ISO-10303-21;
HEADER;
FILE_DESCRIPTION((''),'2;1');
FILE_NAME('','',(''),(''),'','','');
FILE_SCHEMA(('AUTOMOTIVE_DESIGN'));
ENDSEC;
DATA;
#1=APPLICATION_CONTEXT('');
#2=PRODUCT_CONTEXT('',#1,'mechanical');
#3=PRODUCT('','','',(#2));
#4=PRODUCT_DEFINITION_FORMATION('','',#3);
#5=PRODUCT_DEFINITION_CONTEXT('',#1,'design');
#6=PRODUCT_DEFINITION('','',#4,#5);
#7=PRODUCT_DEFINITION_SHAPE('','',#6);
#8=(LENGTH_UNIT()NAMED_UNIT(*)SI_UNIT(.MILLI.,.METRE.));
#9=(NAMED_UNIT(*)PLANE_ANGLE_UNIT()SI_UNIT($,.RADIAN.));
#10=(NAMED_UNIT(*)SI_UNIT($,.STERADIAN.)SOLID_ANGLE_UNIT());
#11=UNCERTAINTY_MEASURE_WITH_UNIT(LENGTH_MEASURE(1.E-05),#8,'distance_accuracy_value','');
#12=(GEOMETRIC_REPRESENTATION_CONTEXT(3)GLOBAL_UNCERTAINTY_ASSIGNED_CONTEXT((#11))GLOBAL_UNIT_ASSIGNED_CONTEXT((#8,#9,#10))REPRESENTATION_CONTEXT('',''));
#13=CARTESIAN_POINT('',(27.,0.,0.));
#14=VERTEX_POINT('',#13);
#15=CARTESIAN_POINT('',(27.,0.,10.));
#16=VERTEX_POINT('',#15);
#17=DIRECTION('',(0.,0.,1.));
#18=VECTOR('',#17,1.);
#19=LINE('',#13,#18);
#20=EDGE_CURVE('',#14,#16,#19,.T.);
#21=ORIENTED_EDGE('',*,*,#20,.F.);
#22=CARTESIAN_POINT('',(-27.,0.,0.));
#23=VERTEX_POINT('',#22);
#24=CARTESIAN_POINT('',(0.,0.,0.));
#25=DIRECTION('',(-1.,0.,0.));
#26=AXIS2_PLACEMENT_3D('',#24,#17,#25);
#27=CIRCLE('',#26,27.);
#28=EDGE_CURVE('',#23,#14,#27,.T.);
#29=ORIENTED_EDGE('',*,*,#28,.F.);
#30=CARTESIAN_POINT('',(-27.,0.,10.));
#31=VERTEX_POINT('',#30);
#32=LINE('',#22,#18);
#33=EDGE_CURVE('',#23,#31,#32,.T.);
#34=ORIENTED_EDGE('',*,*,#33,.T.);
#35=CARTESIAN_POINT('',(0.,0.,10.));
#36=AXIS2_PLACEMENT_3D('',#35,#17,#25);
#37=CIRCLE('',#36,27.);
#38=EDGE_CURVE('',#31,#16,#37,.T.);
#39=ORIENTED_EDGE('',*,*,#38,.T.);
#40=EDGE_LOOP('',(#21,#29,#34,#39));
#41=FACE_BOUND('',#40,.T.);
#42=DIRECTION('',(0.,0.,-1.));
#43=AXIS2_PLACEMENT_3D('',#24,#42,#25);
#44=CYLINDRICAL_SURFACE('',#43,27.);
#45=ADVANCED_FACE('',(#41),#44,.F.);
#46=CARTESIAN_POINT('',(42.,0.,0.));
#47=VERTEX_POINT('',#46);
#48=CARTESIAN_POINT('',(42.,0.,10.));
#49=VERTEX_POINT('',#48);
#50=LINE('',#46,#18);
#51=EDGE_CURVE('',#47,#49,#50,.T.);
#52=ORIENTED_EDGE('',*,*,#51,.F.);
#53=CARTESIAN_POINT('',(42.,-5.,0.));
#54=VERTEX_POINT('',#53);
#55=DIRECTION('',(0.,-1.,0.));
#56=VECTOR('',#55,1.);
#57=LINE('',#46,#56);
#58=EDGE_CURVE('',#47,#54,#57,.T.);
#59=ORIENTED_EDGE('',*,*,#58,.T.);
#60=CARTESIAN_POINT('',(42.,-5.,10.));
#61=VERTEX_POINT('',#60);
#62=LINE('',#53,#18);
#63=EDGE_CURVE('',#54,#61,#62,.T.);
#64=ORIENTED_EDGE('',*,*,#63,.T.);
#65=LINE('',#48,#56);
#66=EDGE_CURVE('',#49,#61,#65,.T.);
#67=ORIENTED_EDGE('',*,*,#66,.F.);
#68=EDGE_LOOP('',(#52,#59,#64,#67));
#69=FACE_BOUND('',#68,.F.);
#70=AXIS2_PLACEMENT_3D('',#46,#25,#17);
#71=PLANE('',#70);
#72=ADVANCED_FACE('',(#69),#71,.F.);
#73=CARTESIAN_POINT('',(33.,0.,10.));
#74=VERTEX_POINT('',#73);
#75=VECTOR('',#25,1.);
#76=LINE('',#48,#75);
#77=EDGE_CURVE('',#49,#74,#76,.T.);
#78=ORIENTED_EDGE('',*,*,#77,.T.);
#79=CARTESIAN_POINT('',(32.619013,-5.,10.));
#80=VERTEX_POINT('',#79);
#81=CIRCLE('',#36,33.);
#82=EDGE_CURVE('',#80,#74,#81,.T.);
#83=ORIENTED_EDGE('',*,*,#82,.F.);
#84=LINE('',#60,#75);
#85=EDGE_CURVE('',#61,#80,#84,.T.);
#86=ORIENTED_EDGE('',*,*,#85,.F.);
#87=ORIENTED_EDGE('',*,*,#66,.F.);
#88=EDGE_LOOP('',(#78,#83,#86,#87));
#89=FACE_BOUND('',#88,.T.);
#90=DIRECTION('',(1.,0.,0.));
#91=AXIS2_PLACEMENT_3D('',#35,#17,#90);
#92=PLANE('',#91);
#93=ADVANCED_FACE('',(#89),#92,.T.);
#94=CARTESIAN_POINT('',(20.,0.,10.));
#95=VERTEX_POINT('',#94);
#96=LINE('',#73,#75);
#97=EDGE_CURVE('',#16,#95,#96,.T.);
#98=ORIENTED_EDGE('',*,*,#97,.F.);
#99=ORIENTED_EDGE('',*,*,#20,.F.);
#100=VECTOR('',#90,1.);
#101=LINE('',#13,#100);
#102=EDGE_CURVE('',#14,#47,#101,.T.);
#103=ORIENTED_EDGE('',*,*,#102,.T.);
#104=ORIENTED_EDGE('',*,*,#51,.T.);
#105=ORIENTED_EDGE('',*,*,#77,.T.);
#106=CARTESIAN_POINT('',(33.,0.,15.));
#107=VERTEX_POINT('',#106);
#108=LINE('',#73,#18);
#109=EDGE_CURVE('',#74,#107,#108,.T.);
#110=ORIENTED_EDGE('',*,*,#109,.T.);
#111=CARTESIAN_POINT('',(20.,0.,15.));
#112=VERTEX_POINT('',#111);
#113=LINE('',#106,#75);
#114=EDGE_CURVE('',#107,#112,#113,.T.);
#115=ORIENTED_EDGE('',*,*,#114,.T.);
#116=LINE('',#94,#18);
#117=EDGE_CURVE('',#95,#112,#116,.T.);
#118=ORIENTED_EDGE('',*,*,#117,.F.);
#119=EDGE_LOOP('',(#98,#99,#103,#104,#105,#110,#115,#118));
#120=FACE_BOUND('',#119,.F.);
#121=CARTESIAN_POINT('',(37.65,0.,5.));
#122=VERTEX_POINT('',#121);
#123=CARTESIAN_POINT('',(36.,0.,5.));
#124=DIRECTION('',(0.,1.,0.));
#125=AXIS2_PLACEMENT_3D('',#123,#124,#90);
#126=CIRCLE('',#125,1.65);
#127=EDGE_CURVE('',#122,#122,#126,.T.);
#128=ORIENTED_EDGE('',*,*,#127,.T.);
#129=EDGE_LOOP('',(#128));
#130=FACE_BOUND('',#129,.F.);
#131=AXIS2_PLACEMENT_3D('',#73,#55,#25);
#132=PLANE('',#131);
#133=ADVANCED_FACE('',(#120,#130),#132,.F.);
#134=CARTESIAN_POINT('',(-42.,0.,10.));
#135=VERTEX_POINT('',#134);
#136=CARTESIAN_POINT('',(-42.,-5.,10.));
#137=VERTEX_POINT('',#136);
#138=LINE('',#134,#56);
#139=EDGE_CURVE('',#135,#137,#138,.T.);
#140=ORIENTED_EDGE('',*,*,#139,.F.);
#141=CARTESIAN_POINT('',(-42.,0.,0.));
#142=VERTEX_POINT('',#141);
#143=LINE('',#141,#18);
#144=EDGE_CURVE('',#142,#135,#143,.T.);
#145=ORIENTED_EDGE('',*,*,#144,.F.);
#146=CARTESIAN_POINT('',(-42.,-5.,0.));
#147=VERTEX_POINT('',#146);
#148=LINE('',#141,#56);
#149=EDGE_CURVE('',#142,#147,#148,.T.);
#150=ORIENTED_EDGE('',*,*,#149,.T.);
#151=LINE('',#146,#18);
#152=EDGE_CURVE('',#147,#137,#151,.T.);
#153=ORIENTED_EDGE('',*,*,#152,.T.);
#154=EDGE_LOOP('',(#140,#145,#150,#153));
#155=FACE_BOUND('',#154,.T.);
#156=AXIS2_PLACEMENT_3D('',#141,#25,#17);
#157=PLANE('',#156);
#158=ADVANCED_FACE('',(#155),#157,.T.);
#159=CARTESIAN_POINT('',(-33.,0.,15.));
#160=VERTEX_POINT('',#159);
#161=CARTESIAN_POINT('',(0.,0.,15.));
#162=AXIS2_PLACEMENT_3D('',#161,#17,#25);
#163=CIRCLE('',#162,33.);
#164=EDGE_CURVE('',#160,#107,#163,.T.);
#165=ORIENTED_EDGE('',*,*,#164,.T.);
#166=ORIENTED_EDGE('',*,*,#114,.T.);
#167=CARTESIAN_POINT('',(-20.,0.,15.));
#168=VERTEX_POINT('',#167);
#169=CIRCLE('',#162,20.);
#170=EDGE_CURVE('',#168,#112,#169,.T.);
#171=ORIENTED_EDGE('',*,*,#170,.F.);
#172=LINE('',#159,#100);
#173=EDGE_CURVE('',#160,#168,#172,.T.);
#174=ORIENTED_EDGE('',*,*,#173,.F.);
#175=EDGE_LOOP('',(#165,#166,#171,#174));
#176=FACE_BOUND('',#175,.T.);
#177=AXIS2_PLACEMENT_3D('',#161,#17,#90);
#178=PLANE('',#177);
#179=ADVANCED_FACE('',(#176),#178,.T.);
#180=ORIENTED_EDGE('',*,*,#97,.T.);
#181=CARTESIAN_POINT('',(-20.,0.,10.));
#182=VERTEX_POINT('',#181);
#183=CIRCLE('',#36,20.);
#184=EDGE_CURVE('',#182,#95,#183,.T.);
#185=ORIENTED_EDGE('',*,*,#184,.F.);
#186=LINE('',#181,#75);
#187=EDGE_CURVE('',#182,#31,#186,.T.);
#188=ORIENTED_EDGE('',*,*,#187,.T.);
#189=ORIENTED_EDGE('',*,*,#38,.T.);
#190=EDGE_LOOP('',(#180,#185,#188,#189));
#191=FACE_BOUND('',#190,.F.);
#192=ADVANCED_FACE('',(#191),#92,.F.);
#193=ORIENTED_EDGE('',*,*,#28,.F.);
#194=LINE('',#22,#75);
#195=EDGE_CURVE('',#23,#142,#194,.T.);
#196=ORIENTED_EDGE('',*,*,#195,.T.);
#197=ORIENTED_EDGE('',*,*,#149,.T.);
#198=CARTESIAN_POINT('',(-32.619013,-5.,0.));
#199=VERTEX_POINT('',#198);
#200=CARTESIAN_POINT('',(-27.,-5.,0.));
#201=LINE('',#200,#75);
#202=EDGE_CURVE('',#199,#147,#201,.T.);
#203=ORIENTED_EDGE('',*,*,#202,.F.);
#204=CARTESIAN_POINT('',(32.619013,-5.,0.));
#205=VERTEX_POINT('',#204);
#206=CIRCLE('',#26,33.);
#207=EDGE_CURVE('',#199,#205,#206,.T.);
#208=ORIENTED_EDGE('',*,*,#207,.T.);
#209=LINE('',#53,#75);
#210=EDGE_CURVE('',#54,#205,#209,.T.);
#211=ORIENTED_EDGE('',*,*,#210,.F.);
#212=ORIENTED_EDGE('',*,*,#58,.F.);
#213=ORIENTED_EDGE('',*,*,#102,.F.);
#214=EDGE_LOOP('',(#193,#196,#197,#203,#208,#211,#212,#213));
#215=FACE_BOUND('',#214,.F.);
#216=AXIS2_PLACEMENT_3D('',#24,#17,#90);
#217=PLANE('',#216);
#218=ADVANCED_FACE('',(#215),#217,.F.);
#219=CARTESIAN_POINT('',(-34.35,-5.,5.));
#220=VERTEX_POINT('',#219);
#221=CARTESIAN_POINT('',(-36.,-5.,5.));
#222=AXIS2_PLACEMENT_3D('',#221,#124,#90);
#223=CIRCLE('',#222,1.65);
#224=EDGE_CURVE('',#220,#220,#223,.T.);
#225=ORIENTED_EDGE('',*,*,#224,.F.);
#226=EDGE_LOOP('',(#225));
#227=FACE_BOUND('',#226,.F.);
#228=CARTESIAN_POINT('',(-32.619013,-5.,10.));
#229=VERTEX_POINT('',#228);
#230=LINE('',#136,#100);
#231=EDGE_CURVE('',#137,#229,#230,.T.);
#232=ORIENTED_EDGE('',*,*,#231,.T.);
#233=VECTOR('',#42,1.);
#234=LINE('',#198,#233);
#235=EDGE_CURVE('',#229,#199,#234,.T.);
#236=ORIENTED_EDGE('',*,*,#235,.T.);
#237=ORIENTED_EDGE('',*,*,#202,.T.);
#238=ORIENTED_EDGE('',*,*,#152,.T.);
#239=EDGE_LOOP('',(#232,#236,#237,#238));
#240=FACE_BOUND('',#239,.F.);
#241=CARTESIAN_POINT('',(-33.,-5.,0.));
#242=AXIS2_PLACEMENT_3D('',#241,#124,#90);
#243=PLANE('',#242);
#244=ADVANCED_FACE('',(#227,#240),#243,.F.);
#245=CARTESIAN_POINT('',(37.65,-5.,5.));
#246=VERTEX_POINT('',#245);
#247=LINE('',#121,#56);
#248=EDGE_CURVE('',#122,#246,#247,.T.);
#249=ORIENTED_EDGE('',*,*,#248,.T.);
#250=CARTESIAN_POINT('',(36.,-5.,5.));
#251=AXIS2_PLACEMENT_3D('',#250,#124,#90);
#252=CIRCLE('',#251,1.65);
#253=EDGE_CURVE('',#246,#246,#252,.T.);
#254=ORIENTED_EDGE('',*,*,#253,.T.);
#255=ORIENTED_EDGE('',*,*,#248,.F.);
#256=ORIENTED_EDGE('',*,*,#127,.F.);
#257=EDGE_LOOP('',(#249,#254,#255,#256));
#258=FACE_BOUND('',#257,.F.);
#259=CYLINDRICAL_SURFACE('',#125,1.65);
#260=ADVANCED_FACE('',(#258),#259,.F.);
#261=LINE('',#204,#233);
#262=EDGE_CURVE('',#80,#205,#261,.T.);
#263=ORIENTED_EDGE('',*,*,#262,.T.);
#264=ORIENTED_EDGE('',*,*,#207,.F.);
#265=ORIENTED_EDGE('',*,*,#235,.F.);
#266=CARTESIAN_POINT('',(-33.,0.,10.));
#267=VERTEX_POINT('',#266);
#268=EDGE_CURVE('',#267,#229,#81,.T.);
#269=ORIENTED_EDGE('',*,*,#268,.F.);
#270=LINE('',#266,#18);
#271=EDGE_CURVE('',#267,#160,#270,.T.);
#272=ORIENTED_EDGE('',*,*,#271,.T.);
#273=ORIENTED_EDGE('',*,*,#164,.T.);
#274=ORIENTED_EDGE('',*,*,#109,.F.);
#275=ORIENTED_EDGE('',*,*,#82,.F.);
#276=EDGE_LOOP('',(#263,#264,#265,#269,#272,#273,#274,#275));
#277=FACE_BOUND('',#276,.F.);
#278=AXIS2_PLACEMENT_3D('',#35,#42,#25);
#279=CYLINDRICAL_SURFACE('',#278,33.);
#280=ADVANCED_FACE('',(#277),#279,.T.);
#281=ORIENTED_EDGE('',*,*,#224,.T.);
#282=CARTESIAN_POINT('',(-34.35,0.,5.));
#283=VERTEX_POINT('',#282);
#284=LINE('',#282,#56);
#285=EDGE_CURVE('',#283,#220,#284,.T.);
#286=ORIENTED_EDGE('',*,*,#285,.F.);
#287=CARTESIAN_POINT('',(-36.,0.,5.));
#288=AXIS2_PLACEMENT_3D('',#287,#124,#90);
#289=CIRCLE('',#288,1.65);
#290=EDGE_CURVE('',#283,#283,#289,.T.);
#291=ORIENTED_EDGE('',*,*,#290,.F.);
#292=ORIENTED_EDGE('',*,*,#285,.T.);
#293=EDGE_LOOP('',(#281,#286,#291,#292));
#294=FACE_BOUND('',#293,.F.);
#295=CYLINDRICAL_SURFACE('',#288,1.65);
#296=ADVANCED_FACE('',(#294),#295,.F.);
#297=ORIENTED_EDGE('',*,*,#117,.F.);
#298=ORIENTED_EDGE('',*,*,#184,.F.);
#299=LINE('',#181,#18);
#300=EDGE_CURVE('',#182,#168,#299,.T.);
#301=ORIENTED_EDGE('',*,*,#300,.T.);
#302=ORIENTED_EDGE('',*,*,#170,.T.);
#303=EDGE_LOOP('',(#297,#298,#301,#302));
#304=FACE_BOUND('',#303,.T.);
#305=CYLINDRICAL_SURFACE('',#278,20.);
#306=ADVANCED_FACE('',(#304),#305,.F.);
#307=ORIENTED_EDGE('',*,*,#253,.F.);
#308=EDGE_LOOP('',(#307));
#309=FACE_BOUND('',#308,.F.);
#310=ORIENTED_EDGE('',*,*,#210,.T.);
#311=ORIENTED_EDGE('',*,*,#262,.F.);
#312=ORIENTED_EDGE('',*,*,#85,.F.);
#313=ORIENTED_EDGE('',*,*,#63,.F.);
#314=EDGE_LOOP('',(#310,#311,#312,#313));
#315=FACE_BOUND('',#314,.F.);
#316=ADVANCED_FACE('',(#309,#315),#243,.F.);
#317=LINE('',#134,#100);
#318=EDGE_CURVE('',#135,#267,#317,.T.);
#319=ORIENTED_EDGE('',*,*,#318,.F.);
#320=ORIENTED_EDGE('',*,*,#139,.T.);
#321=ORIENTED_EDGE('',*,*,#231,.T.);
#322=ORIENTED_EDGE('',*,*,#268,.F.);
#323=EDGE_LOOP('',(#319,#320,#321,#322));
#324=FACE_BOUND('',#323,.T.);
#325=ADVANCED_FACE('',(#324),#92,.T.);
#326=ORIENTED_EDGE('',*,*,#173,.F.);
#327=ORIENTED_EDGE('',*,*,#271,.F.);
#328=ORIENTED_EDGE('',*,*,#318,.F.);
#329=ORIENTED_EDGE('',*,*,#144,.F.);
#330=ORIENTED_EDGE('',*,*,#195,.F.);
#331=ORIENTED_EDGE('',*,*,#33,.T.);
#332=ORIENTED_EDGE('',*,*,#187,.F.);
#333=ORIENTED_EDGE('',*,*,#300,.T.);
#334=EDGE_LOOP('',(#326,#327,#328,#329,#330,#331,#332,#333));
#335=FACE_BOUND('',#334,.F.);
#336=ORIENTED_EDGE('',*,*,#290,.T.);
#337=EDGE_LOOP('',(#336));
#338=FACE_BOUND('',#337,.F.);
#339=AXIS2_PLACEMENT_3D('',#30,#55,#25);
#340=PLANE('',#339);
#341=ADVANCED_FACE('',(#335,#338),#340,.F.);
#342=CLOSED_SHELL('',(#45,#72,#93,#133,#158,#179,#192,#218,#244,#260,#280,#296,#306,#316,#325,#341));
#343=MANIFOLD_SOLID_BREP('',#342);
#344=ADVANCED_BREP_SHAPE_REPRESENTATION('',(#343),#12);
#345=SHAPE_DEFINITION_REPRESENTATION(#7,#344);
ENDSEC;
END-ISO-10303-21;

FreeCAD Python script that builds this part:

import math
import FreeCAD as App
import Part
import Sketcher

V = App.Vector

doc = App.newDocument("Part")
body = doc.addObject("PartDesign::Body", "Body")

# Sketch on XY plane
sketch1 = doc.addObject("Sketcher::SketchObject", "Sketch")
body.addObject(sketch1)
sketch1.AttachmentSupport = (doc.XY_Plane, [""])
sketch1.MapMode = "FlatFace"
sketch1.addGeometry(Part.LineSegment(V(-27, 0, 0), V(-33, 0, 0)), False)
sketch1.addGeometry(Part.ArcOfCircle(Part.Circle(V(0, 0, 0), V(0, 0, 1), 33), math.radians(180), math.radians(360)), False)
sketch1.addGeometry(Part.LineSegment(V(33, 0, 0), V(27, 0, 0)), False)
sketch1.addGeometry(Part.ArcOfCircle(Part.Circle(V(0, 0, 0), V(0, 0, 1), 27), math.radians(180), math.radians(360)), False)
sketch1.addConstraint(Sketcher.Constraint("Coincident", 0, 2, 1, 1))
sketch1.addConstraint(Sketcher.Constraint("Coincident", 1, 2, 2, 1))
sketch1.addConstraint(Sketcher.Constraint("Coincident", 2, 2, 3, 2))
sketch1.addConstraint(Sketcher.Constraint("Coincident", 3, 1, 0, 1))
sketch1.addConstraint(Sketcher.Constraint("Horizontal", 0))
sketch1.addConstraint(Sketcher.Constraint("Horizontal", 2))
sketch1.addConstraint(Sketcher.Constraint("Coincident", 1, 3, -1, 1))
sketch1.addConstraint(Sketcher.Constraint("Coincident", 3, 3, -1, 1))
sketch1.addConstraint(Sketcher.Constraint("PointOnObject", 0, 2, -1))
sketch1.addConstraint(Sketcher.Constraint("PointOnObject", 1, 2, -1))
sketch1.addConstraint(Sketcher.Constraint("Radius", 1, 33.0))
sketch1.addConstraint(Sketcher.Constraint("Radius", 3, 27.0))
pad1 = doc.addObject("PartDesign::Pad", "Pad")
body.addObject(pad1)
pad1.Profile = sketch1
pad1.Length = 10

# Sketch on XZ plane
sketch2 = doc.addObject("Sketcher::SketchObject", "Sketch001")
body.addObject(sketch2)
sketch2.AttachmentSupport = (doc.XZ_Plane, [""])
sketch2.MapMode = "FlatFace"
sketch2.addGeometry(Part.LineSegment(V(-27, 10, 0), V(-27, 0, 0)), False)
sketch2.addGeometry(Part.LineSegment(V(-27, 0, 0), V(-42, 0, 0)), False)
sketch2.addGeometry(Part.LineSegment(V(-42, 0, 0), V(-42, 10, 0)), False)
sketch2.addGeometry(Part.LineSegment(V(-42, 10, 0), V(-27, 10, 0)), False)
sketch2.addGeometry(Part.LineSegment(V(42, 0, 0), V(27, 0, 0)), False)
sketch2.addGeometry(Part.LineSegment(V(27, 0, 0), V(27, 10, 0)), False)
sketch2.addGeometry(Part.LineSegment(V(27, 10, 0), V(42, 10, 0)), False)
sketch2.addGeometry(Part.LineSegment(V(42, 10, 0), V(42, 0, 0)), False)
sketch2.addConstraint(Sketcher.Constraint("Coincident", 0, 2, 1, 1))
sketch2.addConstraint(Sketcher.Constraint("Coincident", 1, 2, 2, 1))
sketch2.addConstraint(Sketcher.Constraint("Coincident", 2, 2, 3, 1))
sketch2.addConstraint(Sketcher.Constraint("Coincident", 3, 2, 0, 1))
sketch2.addConstraint(Sketcher.Constraint("Coincident", 4, 2, 5, 1))
sketch2.addConstraint(Sketcher.Constraint("Coincident", 5, 2, 6, 1))
sketch2.addConstraint(Sketcher.Constraint("Coincident", 6, 2, 7, 1))
sketch2.addConstraint(Sketcher.Constraint("Coincident", 7, 2, 4, 1))
sketch2.addConstraint(Sketcher.Constraint("Vertical", 0))
sketch2.addConstraint(Sketcher.Constraint("Horizontal", 1))
sketch2.addConstraint(Sketcher.Constraint("Vertical", 2))
sketch2.addConstraint(Sketcher.Constraint("Horizontal", 3))
sketch2.addConstraint(Sketcher.Constraint("Horizontal", 4))
sketch2.addConstraint(Sketcher.Constraint("Vertical", 5))
sketch2.addConstraint(Sketcher.Constraint("Horizontal", 6))
sketch2.addConstraint(Sketcher.Constraint("Vertical", 7))
sketch2.addConstraint(Sketcher.Constraint("Symmetric", 0, 2, 4, 2, -1, 1))
sketch2.addConstraint(Sketcher.Constraint("Symmetric", 2, 2, 6, 2, -2))
sketch2.addConstraint(Sketcher.Constraint("PointOnObject", 0, 2, -1))
sketch2.addConstraint(Sketcher.Constraint("DistanceX", 1, 2, 1, 1, 15.0))
sketch2.addConstraint(Sketcher.Constraint("DistanceY", 0, 2, 0, 1, 10.0))
sketch2.addConstraint(Sketcher.Constraint("DistanceX", 0, 2, -1, 1, 27.0))
pad2 = doc.addObject("PartDesign::Pad", "Pad001")
body.addObject(pad2)
pad2.Profile = sketch2
pad2.Length = 5

# Sketch on XZ plane
sketch3 = doc.addObject("Sketcher::SketchObject", "Sketch002")
body.addObject(sketch3)
sketch3.AttachmentSupport = (doc.XZ_Plane, [""])
sketch3.MapMode = "FlatFace"
sketch3.addGeometry(Part.Circle(V(-36, 5, 0), V(0, 0, 1), 1.6), False)
sketch3.addGeometry(Part.Circle(V(36, 5, 0), V(0, 0, 1), 1.6), False)
sketch3.addConstraint(Sketcher.Constraint("Equal", 0, 1))
sketch3.addConstraint(Sketcher.Constraint("Symmetric", 0, 3, 1, 3, -2))
sketch3.addConstraint(Sketcher.Constraint("Diameter", 0, 3.3))
sketch3.addConstraint(Sketcher.Constraint("DistanceY", -1, 1, 0, 3, 5.0))
sketch3.addConstraint(Sketcher.Constraint("DistanceX", 0, 3, -1, 1, 36.0))
pocket1 = doc.addObject("PartDesign::Pocket", "Pocket")
body.addObject(pocket1)
pocket1.Profile = sketch3
pocket1.Length = 5
pocket1.Reversed = True

# Sketch on XY plane
sketch4 = doc.addObject("Sketcher::SketchObject", "Sketch003")
body.addObject(sketch4)
sketch4.AttachmentSupport = (doc.XY_Plane, [""])
sketch4.MapMode = "FlatFace"
sketch4.AttachmentOffset = App.Placement(V(0, 0, 10), App.Rotation())
sketch4.addGeometry(Part.LineSegment(V(-20, 0, 0), V(-33, 0, 0)), False)
sketch4.addGeometry(Part.ArcOfCircle(Part.Circle(V(0, 0, 0), V(0, 0, 1), 33), math.radians(180), math.radians(360)), False)
sketch4.addGeometry(Part.LineSegment(V(33, 0, 0), V(20, 0, 0)), False)
sketch4.addGeometry(Part.ArcOfCircle(Part.Circle(V(0, 0, 0), V(0, 0, 1), 20), math.radians(180), math.radians(360)), False)
sketch4.addConstraint(Sketcher.Constraint("Coincident", 0, 2, 1, 1))
sketch4.addConstraint(Sketcher.Constraint("Coincident", 1, 2, 2, 1))
sketch4.addConstraint(Sketcher.Constraint("Coincident", 2, 2, 3, 2))
sketch4.addConstraint(Sketcher.Constraint("Coincident", 3, 1, 0, 1))
sketch4.addConstraint(Sketcher.Constraint("Horizontal", 0))
sketch4.addConstraint(Sketcher.Constraint("Horizontal", 2))
sketch4.addConstraint(Sketcher.Constraint("Coincident", 1, 3, -1, 1))
sketch4.addConstraint(Sketcher.Constraint("Coincident", 3, 3, -1, 1))
sketch4.addConstraint(Sketcher.Constraint("PointOnObject", 0, 2, -1))
sketch4.addConstraint(Sketcher.Constraint("PointOnObject", 1, 2, -1))
sketch4.addConstraint(Sketcher.Constraint("Radius", 1, 33.0))
sketch4.addConstraint(Sketcher.Constraint("Radius", 3, 20.0))
pad3 = doc.addObject("PartDesign::Pad", "Pad002")
body.addObject(pad3)
pad3.Profile = sketch4
pad3.Length = 5

doc.recompute()
